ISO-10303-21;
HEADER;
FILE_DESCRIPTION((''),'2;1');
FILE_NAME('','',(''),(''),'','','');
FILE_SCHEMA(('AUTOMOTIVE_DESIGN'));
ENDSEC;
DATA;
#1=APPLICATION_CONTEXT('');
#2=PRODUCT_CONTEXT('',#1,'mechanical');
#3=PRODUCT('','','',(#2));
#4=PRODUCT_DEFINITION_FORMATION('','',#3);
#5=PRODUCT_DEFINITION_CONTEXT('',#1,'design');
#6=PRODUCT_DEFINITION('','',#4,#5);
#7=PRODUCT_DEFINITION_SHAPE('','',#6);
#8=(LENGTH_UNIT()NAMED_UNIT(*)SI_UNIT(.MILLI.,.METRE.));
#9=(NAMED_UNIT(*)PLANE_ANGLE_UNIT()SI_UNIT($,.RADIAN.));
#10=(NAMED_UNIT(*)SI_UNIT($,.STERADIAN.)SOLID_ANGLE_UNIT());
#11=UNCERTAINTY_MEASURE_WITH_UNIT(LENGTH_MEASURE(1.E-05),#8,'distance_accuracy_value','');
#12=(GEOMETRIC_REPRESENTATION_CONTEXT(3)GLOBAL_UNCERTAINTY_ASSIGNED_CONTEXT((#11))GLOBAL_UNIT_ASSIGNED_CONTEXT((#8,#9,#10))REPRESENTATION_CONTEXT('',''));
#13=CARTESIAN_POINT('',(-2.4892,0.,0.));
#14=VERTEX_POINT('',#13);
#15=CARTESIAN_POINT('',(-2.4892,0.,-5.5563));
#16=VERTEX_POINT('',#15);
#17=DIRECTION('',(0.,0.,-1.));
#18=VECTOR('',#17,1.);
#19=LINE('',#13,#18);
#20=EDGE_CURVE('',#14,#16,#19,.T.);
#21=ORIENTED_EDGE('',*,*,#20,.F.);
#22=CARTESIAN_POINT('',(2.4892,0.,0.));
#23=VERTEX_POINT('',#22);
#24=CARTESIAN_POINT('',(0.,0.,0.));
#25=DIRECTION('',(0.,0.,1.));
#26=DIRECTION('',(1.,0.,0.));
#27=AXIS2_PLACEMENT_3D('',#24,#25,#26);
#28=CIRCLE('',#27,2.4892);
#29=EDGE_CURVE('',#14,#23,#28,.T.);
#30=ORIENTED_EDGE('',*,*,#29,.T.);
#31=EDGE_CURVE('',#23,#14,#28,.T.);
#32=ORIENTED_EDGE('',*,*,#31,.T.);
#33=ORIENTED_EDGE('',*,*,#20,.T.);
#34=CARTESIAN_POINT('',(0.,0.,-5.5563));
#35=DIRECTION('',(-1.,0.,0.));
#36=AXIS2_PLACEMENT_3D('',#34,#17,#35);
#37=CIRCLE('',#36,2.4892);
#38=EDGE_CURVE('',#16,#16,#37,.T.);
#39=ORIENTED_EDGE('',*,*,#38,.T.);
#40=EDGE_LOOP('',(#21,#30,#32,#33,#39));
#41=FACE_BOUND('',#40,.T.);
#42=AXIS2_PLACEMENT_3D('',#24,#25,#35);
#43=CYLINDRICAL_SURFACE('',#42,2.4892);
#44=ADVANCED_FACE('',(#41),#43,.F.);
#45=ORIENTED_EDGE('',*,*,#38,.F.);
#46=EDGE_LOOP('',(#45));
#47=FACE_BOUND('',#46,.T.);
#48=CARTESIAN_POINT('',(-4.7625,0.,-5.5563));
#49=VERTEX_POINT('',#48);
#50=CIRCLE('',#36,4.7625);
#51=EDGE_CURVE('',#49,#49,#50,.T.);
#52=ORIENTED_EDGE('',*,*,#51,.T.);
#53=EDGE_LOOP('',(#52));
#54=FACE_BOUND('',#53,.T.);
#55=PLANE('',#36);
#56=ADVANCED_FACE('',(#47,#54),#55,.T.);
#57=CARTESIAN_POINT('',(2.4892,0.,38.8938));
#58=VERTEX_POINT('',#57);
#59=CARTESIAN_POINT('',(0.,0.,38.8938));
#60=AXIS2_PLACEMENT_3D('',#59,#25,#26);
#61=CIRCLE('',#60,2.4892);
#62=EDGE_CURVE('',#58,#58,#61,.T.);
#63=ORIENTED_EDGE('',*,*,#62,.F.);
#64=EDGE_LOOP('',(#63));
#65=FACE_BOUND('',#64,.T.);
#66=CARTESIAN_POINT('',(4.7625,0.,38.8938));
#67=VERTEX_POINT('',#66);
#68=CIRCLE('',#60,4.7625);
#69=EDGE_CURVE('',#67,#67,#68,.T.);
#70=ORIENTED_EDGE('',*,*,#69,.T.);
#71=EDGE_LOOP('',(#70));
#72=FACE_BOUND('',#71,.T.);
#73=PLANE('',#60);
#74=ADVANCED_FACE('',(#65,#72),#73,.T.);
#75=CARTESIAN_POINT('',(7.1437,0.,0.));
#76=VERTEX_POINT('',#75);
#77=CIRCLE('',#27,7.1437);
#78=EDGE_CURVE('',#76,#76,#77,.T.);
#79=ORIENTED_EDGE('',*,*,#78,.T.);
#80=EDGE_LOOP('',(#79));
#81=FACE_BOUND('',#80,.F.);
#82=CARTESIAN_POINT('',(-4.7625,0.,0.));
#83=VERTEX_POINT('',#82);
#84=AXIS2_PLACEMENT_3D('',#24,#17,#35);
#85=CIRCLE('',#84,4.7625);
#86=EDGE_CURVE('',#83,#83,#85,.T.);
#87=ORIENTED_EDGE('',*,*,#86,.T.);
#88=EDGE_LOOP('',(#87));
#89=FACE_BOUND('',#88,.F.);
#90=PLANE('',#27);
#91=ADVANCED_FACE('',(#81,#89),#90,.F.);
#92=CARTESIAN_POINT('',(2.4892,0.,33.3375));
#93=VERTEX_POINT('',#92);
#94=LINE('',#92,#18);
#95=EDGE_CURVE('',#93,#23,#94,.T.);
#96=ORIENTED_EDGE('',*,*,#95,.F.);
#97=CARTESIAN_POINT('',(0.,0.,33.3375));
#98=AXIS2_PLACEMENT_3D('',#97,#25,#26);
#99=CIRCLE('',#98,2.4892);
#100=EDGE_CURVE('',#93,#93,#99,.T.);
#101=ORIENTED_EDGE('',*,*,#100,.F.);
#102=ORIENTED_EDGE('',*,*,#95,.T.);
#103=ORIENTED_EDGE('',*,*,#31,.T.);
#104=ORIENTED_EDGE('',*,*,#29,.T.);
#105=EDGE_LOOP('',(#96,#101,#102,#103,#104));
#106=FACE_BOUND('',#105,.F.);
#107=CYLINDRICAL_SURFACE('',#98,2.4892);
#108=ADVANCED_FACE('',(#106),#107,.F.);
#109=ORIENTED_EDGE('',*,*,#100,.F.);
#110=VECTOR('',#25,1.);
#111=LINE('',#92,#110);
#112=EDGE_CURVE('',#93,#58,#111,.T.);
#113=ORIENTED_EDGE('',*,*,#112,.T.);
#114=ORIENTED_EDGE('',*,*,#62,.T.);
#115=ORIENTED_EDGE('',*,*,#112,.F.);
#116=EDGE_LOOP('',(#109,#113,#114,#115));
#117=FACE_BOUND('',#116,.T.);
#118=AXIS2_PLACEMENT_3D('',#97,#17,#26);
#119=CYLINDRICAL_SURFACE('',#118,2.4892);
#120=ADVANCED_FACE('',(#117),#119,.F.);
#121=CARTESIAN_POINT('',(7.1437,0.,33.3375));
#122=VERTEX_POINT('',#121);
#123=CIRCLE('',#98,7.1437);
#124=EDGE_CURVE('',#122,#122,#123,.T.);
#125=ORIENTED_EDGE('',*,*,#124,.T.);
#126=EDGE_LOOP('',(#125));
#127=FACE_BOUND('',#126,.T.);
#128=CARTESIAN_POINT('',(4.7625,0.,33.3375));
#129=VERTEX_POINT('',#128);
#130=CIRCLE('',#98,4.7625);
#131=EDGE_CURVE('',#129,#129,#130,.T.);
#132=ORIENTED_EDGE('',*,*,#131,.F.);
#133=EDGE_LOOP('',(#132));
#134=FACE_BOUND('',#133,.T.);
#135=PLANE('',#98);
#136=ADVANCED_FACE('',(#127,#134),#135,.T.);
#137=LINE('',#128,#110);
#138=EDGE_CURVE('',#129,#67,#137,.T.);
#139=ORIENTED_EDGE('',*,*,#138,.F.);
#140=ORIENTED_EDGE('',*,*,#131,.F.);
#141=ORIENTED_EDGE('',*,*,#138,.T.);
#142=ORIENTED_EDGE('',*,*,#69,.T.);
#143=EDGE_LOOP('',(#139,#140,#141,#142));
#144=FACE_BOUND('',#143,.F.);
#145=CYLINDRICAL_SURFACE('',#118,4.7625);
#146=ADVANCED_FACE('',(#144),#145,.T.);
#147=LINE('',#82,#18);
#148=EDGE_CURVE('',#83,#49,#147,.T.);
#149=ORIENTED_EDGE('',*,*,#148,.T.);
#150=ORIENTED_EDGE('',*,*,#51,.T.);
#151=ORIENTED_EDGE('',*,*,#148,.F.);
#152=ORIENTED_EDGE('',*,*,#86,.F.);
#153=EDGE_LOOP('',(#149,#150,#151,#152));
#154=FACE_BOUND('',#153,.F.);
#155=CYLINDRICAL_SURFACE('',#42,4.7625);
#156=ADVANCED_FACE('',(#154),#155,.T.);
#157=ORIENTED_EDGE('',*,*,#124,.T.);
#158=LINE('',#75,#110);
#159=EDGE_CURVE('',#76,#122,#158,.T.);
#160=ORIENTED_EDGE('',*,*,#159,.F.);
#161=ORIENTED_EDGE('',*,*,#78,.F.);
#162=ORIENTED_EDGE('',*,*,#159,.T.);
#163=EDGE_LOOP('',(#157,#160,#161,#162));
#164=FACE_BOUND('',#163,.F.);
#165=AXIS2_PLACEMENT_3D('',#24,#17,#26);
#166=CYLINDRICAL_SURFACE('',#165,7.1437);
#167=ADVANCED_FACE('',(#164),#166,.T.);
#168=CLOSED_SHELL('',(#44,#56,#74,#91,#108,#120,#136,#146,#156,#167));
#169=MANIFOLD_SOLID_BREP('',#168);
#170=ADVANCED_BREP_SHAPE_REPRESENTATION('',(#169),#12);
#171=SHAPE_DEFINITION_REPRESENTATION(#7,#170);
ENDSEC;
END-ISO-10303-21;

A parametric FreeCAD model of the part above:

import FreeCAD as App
import Part
import Sketcher
Q = App.Units.Quantity

doc = App.newDocument("Part")
body = doc.addObject("PartDesign::Body", "Body")

# Sketch on XY plane
sketch1 = body.newObject("Sketcher::SketchObject", "Sketch")
sketch1.AttachmentSupport = (doc.getObject("XY_Plane"), [""])
sketch1.MapMode = "FlatFace"
sketch1.addGeometry(Part.Circle(App.Vector(0, 0, 0), App.Vector(0, 0, 1), 7.1437), False)
sketch1.addConstraint([
    Sketcher.Constraint("Coincident", 0, 3, -1, 1),
    Sketcher.Constraint("Diameter", 0, Q("0.5625 in")),
])
pad1 = body.newObject("PartDesign::Pad", "Pad")
pad1.Profile = sketch1
pad1.Length = Q("1.3125 in")

# Sketch on XY plane
sketch2 = body.newObject("Sketcher::SketchObject", "Sketch001")
sketch2.AttachmentSupport = (doc.getObject("XY_Plane"), [""])
sketch2.MapMode = "FlatFace"
sketch2.AttachmentOffset = App.Placement(App.Vector(0, 0, 1.3125 * 25.4), App.Rotation())
sketch2.addGeometry(Part.Circle(App.Vector(0, 0, 0), App.Vector(0, 0, 1), 2.4892), False)
sketch2.addConstraint([
    Sketcher.Constraint("Coincident", 0, 3, -1, 1),
    Sketcher.Constraint("Diameter", 0, Q("0.196 in")),
])
pocket1 = body.newObject("PartDesign::Pocket", "Pocket")
pocket1.Profile = sketch2
pocket1.Type = "ThroughAll"

# Sketch on XY plane
sketch3 = body.newObject("Sketcher::SketchObject", "Sketch002")
sketch3.AttachmentSupport = (doc.getObject("XY_Plane"), [""])
sketch3.MapMode = "FlatFace"
sketch3.AttachmentOffset = App.Placement(App.Vector(0, 0, 1.3125 * 25.4), App.Rotation())
sketch3.addGeometry([
    Part.Circle(App.Vector(0, 0, 0), App.Vector(0, 0, 1), 4.7625),
    Part.Circle(App.Vector(0, 0, 0), App.Vector(0, 0, 1), 2.4892),
], False)
sketch3.addConstraint([
    Sketcher.Constraint("Coincident", 0, 3, -1, 1),
    Sketcher.Constraint("Coincident", 1, 3, -1, 1),
    Sketcher.Constraint("Diameter", 0, Q("0.375 in")),
    Sketcher.Constraint("Diameter", 1, Q("0.196 in")),
])
pad2 = body.newObject("PartDesign::Pad", "Pad001")
pad2.Profile = sketch3
pad2.Length = Q("0.218752 in")

# Sketch on XY plane
sketch4 = body.newObject("Sketcher::SketchObject", "Sketch003")
sketch4.AttachmentSupport = (doc.getObject("XY_Plane"), [""])
sketch4.MapMode = "FlatFace"
sketch4.addGeometry([
    Part.Circle(App.Vector(0, 0, 0), App.Vector(0, 0, 1), 4.7625),
    Part.Circle(App.Vector(0, 0, 0), App.Vector(0, 0, 1), 2.4892),
], False)
sketch4.addConstraint([
    Sketcher.Constraint("Coincident", 0, 3, -1, 1),
    Sketcher.Constraint("Coincident", 1, 3, -1, 1),
    Sketcher.Constraint("Diameter", 0, Q("0.375 in")),
    Sketcher.Constraint("Diameter", 1, Q("0.196 in")),
])
pad3 = body.newObject("PartDesign::Pad", "Pad002")
pad3.Profile = sketch4
pad3.Length = Q("0.218752 in")
pad3.Reversed = True

doc.recompute()
